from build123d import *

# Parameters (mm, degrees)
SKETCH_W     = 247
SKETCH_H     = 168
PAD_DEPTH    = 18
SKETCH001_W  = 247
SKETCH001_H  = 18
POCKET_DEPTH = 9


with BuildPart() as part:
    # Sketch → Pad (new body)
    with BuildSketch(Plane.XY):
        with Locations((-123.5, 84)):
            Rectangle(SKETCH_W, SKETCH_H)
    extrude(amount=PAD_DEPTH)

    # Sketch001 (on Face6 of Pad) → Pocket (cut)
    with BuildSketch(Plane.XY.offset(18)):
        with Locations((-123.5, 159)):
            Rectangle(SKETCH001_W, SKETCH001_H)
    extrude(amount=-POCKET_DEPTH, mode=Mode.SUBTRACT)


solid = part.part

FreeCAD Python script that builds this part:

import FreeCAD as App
import Part
import Sketcher

V = App.Vector


def add_polygon(sketch, points):
    """Adds a closed chain of lines whose ends are joined by coincident constraints."""
    first, n = sketch.GeometryCount, len(points)
    for a, b in zip(points, points[1:] + points[:1]):
        sketch.addGeometry(Part.LineSegment(App.Vector(*a, 0), App.Vector(*b, 0)), False)
    for i in range(n):
        sketch.addConstraint(Sketcher.Constraint("Coincident", first + i, 2, first + (i + 1) % n, 1))

doc = App.newDocument("Part")
body = doc.addObject("PartDesign::Body", "Body")

# Sketch on XY plane
sketch1 = body.newObject("Sketcher::SketchObject", "Sketch")
sketch1.AttachmentSupport = (doc.getObject("XY_Plane"), [""])
sketch1.MapMode = "FlatFace"
add_polygon(sketch1, [(-247, 168), (-247, 0), (0, 0), (0, 168)])  # lines 0-3
sketch1.addConstraint([
    Sketcher.Constraint("Vertical", 0),
    Sketcher.Constraint("Horizontal", 1),
    Sketcher.Constraint("Vertical", 2),
    Sketcher.Constraint("Horizontal", 3),
    Sketcher.Constraint("Coincident", 1, 2, -1, 1),
    Sketcher.Constraint("DistanceX", 1, 1, 1, 2, 247.0),
    Sketcher.Constraint("DistanceY", 0, 2, 0, 1, 168.0),
])
pad1 = body.newObject("PartDesign::Pad", "Pad")
pad1.Profile = sketch1
pad1.Length = 18

# Sketch on XY plane
sketch2 = body.newObject("Sketcher::SketchObject", "Sketch001")
sketch2.AttachmentSupport = (doc.getObject("XY_Plane"), [""])
sketch2.MapMode = "FlatFace"
sketch2.AttachmentOffset = App.Placement(V(0, 0, 18), App.Rotation())
add_polygon(sketch2, [(-247, 168), (-247, 150), (0, 150), (0, 168)])  # lines 0-3
sketch2.addConstraint([
    Sketcher.Constraint("Vertical", 0),
    Sketcher.Constraint("Horizontal", 1),
    Sketcher.Constraint("Vertical", 2),
    Sketcher.Constraint("Horizontal", 3),
    Sketcher.Constraint("PointOnObject", 1, 2, -2),
    Sketcher.Constraint("DistanceX", 1, 1, 1, 2, 247.0),
    Sketcher.Constraint("DistanceY", 0, 2, 0, 1, 18.0),
    Sketcher.Constraint("DistanceY", -1, 1, 0, 2, 150.0),
])
pocket1 = body.newObject("PartDesign::Pocket", "Pocket")
pocket1.Profile = sketch2
pocket1.Length = 9

doc.recompute()
